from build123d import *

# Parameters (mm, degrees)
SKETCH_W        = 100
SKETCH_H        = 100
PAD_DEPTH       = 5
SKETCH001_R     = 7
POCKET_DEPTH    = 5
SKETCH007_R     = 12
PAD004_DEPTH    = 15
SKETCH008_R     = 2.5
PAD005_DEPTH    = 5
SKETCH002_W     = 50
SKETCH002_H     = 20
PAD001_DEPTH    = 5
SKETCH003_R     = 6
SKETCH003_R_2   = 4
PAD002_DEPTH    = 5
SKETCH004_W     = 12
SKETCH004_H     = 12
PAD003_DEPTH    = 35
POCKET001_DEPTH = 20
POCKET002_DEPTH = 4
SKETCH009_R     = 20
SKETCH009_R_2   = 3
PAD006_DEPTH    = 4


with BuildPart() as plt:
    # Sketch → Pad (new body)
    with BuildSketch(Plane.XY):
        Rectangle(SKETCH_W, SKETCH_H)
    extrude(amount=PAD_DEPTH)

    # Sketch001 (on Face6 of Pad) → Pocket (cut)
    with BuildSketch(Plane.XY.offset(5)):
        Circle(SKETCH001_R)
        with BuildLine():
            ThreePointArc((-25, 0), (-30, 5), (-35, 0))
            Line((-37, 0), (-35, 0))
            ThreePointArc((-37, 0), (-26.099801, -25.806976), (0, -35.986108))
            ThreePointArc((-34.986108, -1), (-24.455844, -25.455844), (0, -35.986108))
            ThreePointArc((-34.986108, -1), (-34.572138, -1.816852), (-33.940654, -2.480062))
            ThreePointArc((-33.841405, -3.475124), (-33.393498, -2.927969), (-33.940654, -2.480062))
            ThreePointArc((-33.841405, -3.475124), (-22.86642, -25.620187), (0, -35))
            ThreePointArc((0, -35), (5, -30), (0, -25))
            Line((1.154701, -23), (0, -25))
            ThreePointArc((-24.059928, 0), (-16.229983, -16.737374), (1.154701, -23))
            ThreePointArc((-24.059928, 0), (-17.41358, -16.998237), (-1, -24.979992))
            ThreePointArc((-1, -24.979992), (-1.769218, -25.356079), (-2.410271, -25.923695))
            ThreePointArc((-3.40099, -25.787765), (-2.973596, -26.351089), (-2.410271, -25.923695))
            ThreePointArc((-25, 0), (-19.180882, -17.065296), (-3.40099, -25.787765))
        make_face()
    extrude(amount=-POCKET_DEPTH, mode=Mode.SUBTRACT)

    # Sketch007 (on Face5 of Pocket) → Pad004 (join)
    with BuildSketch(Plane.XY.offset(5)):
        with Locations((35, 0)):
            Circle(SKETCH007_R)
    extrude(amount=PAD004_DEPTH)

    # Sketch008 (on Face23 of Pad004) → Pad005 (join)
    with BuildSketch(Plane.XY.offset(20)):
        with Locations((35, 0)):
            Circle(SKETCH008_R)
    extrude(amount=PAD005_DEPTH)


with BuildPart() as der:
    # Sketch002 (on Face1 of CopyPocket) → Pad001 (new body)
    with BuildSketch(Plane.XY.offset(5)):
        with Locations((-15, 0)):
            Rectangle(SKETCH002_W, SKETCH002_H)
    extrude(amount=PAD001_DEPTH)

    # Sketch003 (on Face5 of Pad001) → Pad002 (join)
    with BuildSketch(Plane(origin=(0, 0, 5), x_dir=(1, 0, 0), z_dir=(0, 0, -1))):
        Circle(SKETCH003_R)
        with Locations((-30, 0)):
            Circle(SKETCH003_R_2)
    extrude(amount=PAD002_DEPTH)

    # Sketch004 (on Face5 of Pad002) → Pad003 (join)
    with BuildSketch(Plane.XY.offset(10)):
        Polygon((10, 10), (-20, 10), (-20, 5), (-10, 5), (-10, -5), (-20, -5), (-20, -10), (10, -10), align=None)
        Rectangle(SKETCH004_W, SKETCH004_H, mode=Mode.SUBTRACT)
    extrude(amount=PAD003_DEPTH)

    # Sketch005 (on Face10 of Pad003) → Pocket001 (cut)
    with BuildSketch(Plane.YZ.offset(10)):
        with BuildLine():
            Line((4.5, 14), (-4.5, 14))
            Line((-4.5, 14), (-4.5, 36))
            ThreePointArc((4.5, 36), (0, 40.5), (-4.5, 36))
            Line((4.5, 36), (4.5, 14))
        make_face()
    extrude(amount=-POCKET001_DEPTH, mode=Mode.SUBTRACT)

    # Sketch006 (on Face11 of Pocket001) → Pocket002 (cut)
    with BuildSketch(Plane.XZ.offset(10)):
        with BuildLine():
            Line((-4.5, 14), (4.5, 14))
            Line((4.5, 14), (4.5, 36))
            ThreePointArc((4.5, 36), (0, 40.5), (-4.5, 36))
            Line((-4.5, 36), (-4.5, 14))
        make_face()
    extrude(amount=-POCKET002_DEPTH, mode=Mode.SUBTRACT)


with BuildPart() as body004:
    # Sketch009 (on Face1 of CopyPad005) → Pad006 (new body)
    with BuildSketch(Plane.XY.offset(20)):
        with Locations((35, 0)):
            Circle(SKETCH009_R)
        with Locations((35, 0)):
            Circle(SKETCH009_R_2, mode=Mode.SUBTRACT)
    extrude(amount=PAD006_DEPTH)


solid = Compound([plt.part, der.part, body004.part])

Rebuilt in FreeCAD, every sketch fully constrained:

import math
import FreeCAD as App
import Part
import Sketcher
Q = App.Units.Quantity


def add_polygon(sketch, points):
    """Adds a closed chain of lines whose ends are joined by coincident constraints."""
    first, n = sketch.GeometryCount, len(points)
    for a, b in zip(points, points[1:] + points[:1]):
        sketch.addGeometry(Part.LineSegment(App.Vector(*a, 0), App.Vector(*b, 0)), False)
    for i in range(n):
        sketch.addConstraint(Sketcher.Constraint("Coincident", first + i, 2, first + (i + 1) % n, 1))

doc = App.newDocument("Part")
body = doc.addObject("PartDesign::Body", "Body")

# Sketch on XY plane
sketch1 = body.newObject("Sketcher::SketchObject", "Sketch")
sketch1.AttachmentSupport = (doc.getObject("XY_Plane"), [""])
sketch1.MapMode = "FlatFace"
add_polygon(sketch1, [(-50, 50), (-50, -50), (50, -50), (50, 50)])  # lines 0-3
sketch1.addConstraint(Sketcher.Constraint("Vertical", 0))
sketch1.addConstraint(Sketcher.Constraint("Horizontal", 1))
sketch1.addConstraint(Sketcher.Constraint("Vertical", 2))
sketch1.addConstraint(Sketcher.Constraint("Horizontal", 3))
sketch1.addConstraint(Sketcher.Constraint("Symmetric", 0, 2, 2, 2, -1, 1))
sketch1.addConstraint(Sketcher.Constraint("Equal", 3, 0))
sketch1.addConstraint(Sketcher.Constraint("DistanceX", 1, 1, 1, 2, Q("100 mm")))
pad1 = body.newObject("PartDesign::Pad", "Pad")
pad1.Profile = sketch1
pad1.Length = 5

# Sketch on XY plane
sketch2 = body.newObject("Sketcher::SketchObject", "Sketch001")
sketch2.AttachmentSupport = (doc.getObject("XY_Plane"), [""])
sketch2.MapMode = "FlatFace"
sketch2.AttachmentOffset = App.Placement(App.Vector(0, 0, 5), App.Rotation())
sketch2.addGeometry(Part.Circle(App.Vector(0, 0, 0), App.Vector(0, 0, 1), 7), False)
sketch2.addGeometry(Part.ArcOfCircle(Part.Circle(App.Vector(-30, 0, 0), App.Vector(0, 0, 1), 5), math.radians(0), math.radians(180)), False)
sketch2.addGeometry(Part.LineSegment(App.Vector(-35, 0, 0), App.Vector(-37, 0, 0)), False)
sketch2.addGeometry(Part.ArcOfCircle(Part.Circle(App.Vector(-1.000001, -0.000001, 0), App.Vector(0, 0, 1), 35.999999), math.radians(179.999998), math.radians(271.591756)), False)
sketch2.addGeometry(Part.ArcOfCircle(Part.Circle(App.Vector(0.999999, -0.000001, 0), App.Vector(0, 0, 1), 35.999999), math.radians(-178.408247), math.radians(-91.591753)), False)
sketch2.addGeometry(Part.ArcOfCircle(Part.Circle(App.Vector(-32.000005, -0.000005, 0), App.Vector(0, 0, 1), 3.149095), math.radians(-161.485181), math.radians(-128.043244)), False)
sketch2.addGeometry(Part.ArcOfCircle(Part.Circle(App.Vector(-33.891029, -2.977593, 0), App.Vector(0, 0, 1), 0.5), math.radians(-84.304122), math.radians(95.695981)), False)
sketch2.addGeometry(Part.ArcOfCircle(Part.Circle(App.Vector(1, 0, 0), App.Vector(0, 0, 1), 35.014283), math.radians(-174.304087), math.radians(-91.636578)), False)
sketch2.addGeometry(Part.ArcOfCircle(Part.Circle(App.Vector(0, -30, 0), App.Vector(0, 0, 1), 5), math.radians(-90), math.radians(90)), False)
sketch2.addGeometry(Part.LineSegment(App.Vector(0, -25, 0), App.Vector(1.154701, -23, 0)), False)
sketch2.addGeometry(Part.ArcOfCircle(Part.Circle(App.Vector(0.000001, 1.055366, 0), App.Vector(0, 0, 1), 24.083064), math.radians(-177.488385), math.radians(-87.25181)), False)
sketch2.addGeometry(Part.ArcOfCircle(Part.Circle(App.Vector(1, 0, 0), App.Vector(0, 0, 1), 25.059928), math.radians(-179.999999), math.radians(-94.57757)), False)
sketch2.addGeometry(Part.ArcOfCircle(Part.Circle(App.Vector(-0.000005, -27.999993, 0), App.Vector(0, 0, 1), 3.181257), math.radians(108.320951), math.radians(139.2571)), False)
sketch2.addGeometry(Part.ArcOfCircle(Part.Circle(App.Vector(-2.90563, -25.85573, 0), App.Vector(0, 0, 1), 0.5), math.radians(172.187653), math.radians(352.187555)), False)
sketch2.addGeometry(Part.ArcOfCircle(Part.Circle(App.Vector(0.000003, -0.999998, 0), App.Vector(0, 0, 1), 25.019995), math.radians(177.709394), math.radians(262.187542)), False)
sketch2.addConstraint(Sketcher.Constraint("Coincident", 1, 2, 2, 1))
sketch2.addConstraint(Sketcher.Constraint("Coincident", 2, 2, 3, 1))
sketch2.addConstraint(Sketcher.Constraint("Coincident", 3, 2, 4, 2))
sketch2.addConstraint(Sketcher.Constraint("Coincident", 4, 1, 5, 1))
sketch2.addConstraint(Sketcher.Constraint("Coincident", 5, 2, 6, 2))
sketch2.addConstraint(Sketcher.Constraint("Coincident", 6, 1, 7, 1))
sketch2.addConstraint(Sketcher.Constraint("Coincident", 7, 2, 8, 1))
sketch2.addConstraint(Sketcher.Constraint("Coincident", 8, 2, 9, 1))
sketch2.addConstraint(Sketcher.Constraint("Coincident", 9, 2, 10, 2))
sketch2.addConstraint(Sketcher.Constraint("Coincident", 10, 1, 11, 1))
sketch2.addConstraint(Sketcher.Constraint("Coincident", 11, 2, 12, 1))
sketch2.addConstraint(Sketcher.Constraint("Coincident", 12, 2, 13, 2))
sketch2.addConstraint(Sketcher.Constraint("Coincident", 13, 1, 14, 2))
sketch2.addConstraint(Sketcher.Constraint("Coincident", 14, 1, 1, 1))
sketch2.addConstraint(Sketcher.Constraint("Horizontal", 2))
sketch2.addConstraint(Sketcher.Constraint("Coincident", 0, 3, -1, 1))
sketch2.addConstraint(Sketcher.Constraint("Coincident", 7, 3, 4, 3))
sketch2.addConstraint(Sketcher.Constraint("Coincident", 11, 3, 4, 3))
sketch2.addConstraint(Sketcher.Constraint("Equal", 3, 4))
sketch2.addConstraint(Sketcher.Constraint("Equal", 1, 8))
sketch2.addConstraint(Sketcher.Constraint("Equal", 6, 13))
sketch2.addConstraint(Sketcher.Constraint("Symmetric", 3, 3, 4, 3, -1, 1))
sketch2.addConstraint(Sketcher.Constraint("PointOnObject", 1, 3, -1))
sketch2.addConstraint(Sketcher.Constraint("PointOnObject", 3, 3, -1))
sketch2.addConstraint(Sketcher.Constraint("PointOnObject", 8, 3, -2))
sketch2.addConstraint(Sketcher.Constraint("PointOnObject", 10, 3, -2))
sketch2.addConstraint(Sketcher.Constraint("PointOnObject", 1, 2, -1))
sketch2.addConstraint(Sketcher.Constraint("PointOnObject", 7, 2, -2))
sketch2.addConstraint(Sketcher.Constraint("PointOnObject", 8, 2, -2))
sketch2.addConstraint(Sketcher.Constraint("PointOnObject", 10, 1, -1))
sketch2.addConstraint(Sketcher.Constraint("PointOnObject", 14, 1, -1))
sketch2.addConstraint(Sketcher.Constraint("Horizontal", 14, 3, 4, 1))
sketch2.addConstraint(Sketcher.Constraint("Vertical", 3, 3, 11, 2))
sketch2.addConstraint(Sketcher.Constraint("Diameter", 0, Q("14 mm")))
sketch2.addConstraint(Sketcher.Constraint("Radius", 1, Q("5 mm")))
sketch2.addConstraint(Sketcher.Constraint("Radius", 3, Q("35.999999 mm")))
sketch2.addConstraint(Sketcher.Constraint("Radius", 6, Q("0.5 mm")))
sketch2.addConstraint(Sketcher.Constraint("DistanceX", 2, 2, 2, 1, Q("2 mm")))
sketch2.addConstraint(Sketcher.Constraint("Angle", 9, Q("59.99999 deg")))
sketch2.addConstraint(Sketcher.Constraint("DistanceX", 1, 3, -1, 1, Q("30 mm")))
sketch2.addConstraint(Sketcher.Constraint("DistanceY", 8, 3, -1, 1, Q("30 mm")))
sketch2.addConstraint(Sketcher.Constraint("DistanceY", 14, 3, -1, 1, Q("0.999998 mm")))
sketch2.addConstraint(Sketcher.Constraint("DistanceY", 9, 2, -1, 1, Q("23 mm")))
sketch2.addConstraint(Sketcher.Constraint("Radius", 11, Q("25.059928 mm")))
sketch2.addConstraint(Sketcher.Constraint("DistanceY", 12, 3, 11, 2, Q("3.020001 mm")))
sketch2.addConstraint(Sketcher.Constraint("Radius", 5, Q("3.149095 mm")))
sketch2.addConstraint(Sketcher.Constraint("Radius", 12, Q("3.181257 mm")))
sketch2.addConstraint(Sketcher.Constraint("Radius", 14, Q("25.019995 mm")))
sketch2.addConstraint(Sketcher.Constraint("DistanceX", 6, 1, 5, 3, Q("1.8414 mm")))
sketch2.addConstraint(Sketcher.Constraint("DistanceX", 6, 3, 10, 1, Q("9.831101 mm")))
sketch2.addConstraint(Sketcher.Constraint("DistanceX", 13, 3, -1, 1, Q("2.90563 mm")))
sketch2.addConstraint(Sketcher.Constraint("DistanceY", 13, 3, -1, 1, Q("25.85573 mm")))
sketch2.addConstraint(Sketcher.Constraint("DistanceY", 5, 2, -1, 1, Q("2.480062 mm")))
pocket1 = body.newObject("PartDesign::Pocket", "Pocket")
pocket1.Profile = sketch2
pocket1.Length = 5

# Sketch on XY plane
sketch3 = body.newObject("Sketcher::SketchObject", "Sketch002")
sketch3.AttachmentSupport = (doc.getObject("XY_Plane"), [""])
sketch3.MapMode = "FlatFace"
sketch3.AttachmentOffset = App.Placement(App.Vector(0, 0, 5), App.Rotation())
sketch3.addGeometry(Part.Circle(App.Vector(35, 0, 0), App.Vector(0, 0, 1), 12), False)
sketch3.addConstraint(Sketcher.Constraint("PointOnObject", 0, 3, -1))
sketch3.addConstraint(Sketcher.Constraint("Diameter", 0, Q("24 mm")))
sketch3.addConstraint(Sketcher.Constraint("DistanceX", -1, 1, 0, 3, Q("35 mm")))
pad2 = body.newObject("PartDesign::Pad", "Pad001")
pad2.Profile = sketch3
pad2.Length = 15

# Sketch on XY plane
sketch4 = body.newObject("Sketcher::SketchObject", "Sketch003")
sketch4.AttachmentSupport = (doc.getObject("XY_Plane"), [""])
sketch4.MapMode = "FlatFace"
sketch4.AttachmentOffset = App.Placement(App.Vector(0, 0, 20), App.Rotation())
sketch4.addGeometry(Part.Circle(App.Vector(35, 0, 0), App.Vector(0, 0, 1), 2.5), False)
sketch4.addConstraint(Sketcher.Constraint("PointOnObject", 0, 3, -1))
sketch4.addConstraint(Sketcher.Constraint("Diameter", 0, Q("5 mm")))
sketch4.addConstraint(Sketcher.Constraint("DistanceX", -1, 1, 0, 3, Q("35 mm")))
pad3 = body.newObject("PartDesign::Pad", "Pad002")
pad3.Profile = sketch4
pad3.Length = 5
body2 = doc.addObject("PartDesign::Body", "Body001")

# Sketch on XY plane
sketch5 = body2.newObject("Sketcher::SketchObject", "Sketch004")
sketch5.AttachmentSupport = (doc.getObject("XY_Plane001"), [""])
sketch5.MapMode = "FlatFace"
sketch5.AttachmentOffset = App.Placement(App.Vector(0, 0, 5), App.Rotation())
add_polygon(sketch5, [(-40, 10), (-40, -10), (10, -10), (10, 10)])  # lines 0-3
sketch5.addConstraint(Sketcher.Constraint("Vertical", 0))
sketch5.addConstraint(Sketcher.Constraint("Horizontal", 1))
sketch5.addConstraint(Sketcher.Constraint("Vertical", 2))
sketch5.addConstraint(Sketcher.Constraint("Horizontal", 3))
sketch5.addConstraint(Sketcher.Constraint("DistanceX", 1, 1, 1, 2, Q("50 mm")))
sketch5.addConstraint(Sketcher.Constraint("DistanceY", 0, 2, 0, 1, Q("20 mm")))
sketch5.addConstraint(Sketcher.Constraint("DistanceX", 0, 2, -1, 1, Q("40 mm")))
sketch5.addConstraint(Sketcher.Constraint("DistanceY", 0, 2, -1, 1, Q("10 mm")))
pad4 = body2.newObject("PartDesign::Pad", "Pad003")
pad4.Profile = sketch5
pad4.Length = 5

# Sketch on XY plane
sketch6 = body2.newObject("Sketcher::SketchObject", "Sketch005")
sketch6.AttachmentSupport = (doc.getObject("XY_Plane001"), [""])
sketch6.MapMode = "FlatFace"
sketch6.AttachmentOffset = App.Placement(App.Vector(0, 0, 5), App.Rotation())
sketch6.addGeometry(Part.Circle(App.Vector(0, 0, 0), App.Vector(0, 0, 1), 6), False)
sketch6.addGeometry(Part.Circle(App.Vector(-30, 0, 0), App.Vector(0, 0, 1), 4), False)
sketch6.addConstraint(Sketcher.Constraint("Coincident", 0, 3, -1, 1))
sketch6.addConstraint(Sketcher.Constraint("PointOnObject", 1, 3, -1))
sketch6.addConstraint(Sketcher.Constraint("Diameter", 0, Q("12 mm")))
sketch6.addConstraint(Sketcher.Constraint("Diameter", 1, Q("8 mm")))
sketch6.addConstraint(Sketcher.Constraint("DistanceX", 1, 3, -1, 1, Q("30 mm")))
pad5 = body2.newObject("PartDesign::Pad", "Pad004")
pad5.Profile = sketch6
pad5.Length = 5
pad5.Reversed = True

# Sketch on XY plane
sketch7 = body2.newObject("Sketcher::SketchObject", "Sketch006")
sketch7.AttachmentSupport = (doc.getObject("XY_Plane001"), [""])
sketch7.MapMode = "FlatFace"
sketch7.AttachmentOffset = App.Placement(App.Vector(0, 0, 10), App.Rotation())
add_polygon(sketch7, [(10, 10), (-20, 10), (-20, 5), (-10, 5), (-10, -5), (-20, -5), (-20, -10), (10, -10)])  # lines 0-7
add_polygon(sketch7, [(6, -6), (-6, -6), (-6, 6), (6, 6)])  # lines 8-11
sketch7.addConstraint(Sketcher.Constraint("Horizontal", 0))
sketch7.addConstraint(Sketcher.Constraint("Vertical", 1))
sketch7.addConstraint(Sketcher.Constraint("Horizontal", 2))
sketch7.addConstraint(Sketcher.Constraint("Vertical", 3))
sketch7.addConstraint(Sketcher.Constraint("Horizontal", 4))
sketch7.addConstraint(Sketcher.Constraint("Vertical", 5))
sketch7.addConstraint(Sketcher.Constraint("Horizontal", 6))
sketch7.addConstraint(Sketcher.Constraint("Vertical", 7))
sketch7.addConstraint(Sketcher.Constraint("Horizontal", 8))
sketch7.addConstraint(Sketcher.Constraint("Vertical", 9))
sketch7.addConstraint(Sketcher.Constraint("Horizontal", 10))
sketch7.addConstraint(Sketcher.Constraint("Vertical", 11))
sketch7.addConstraint(Sketcher.Constraint("Symmetric", 8, 2, 10, 2, -1, 1))
sketch7.addConstraint(Sketcher.Constraint("Symmetric", 1, 2, 4, 2, -1))
sketch7.addConstraint(Sketcher.Constraint("Equal", 4, 3))
sketch7.addConstraint(Sketcher.Constraint("Equal", 1, 5))
sketch7.addConstraint(Sketcher.Constraint("Equal", 10, 9))
sketch7.addConstraint(Sketcher.Constraint("DistanceX", 0, 2, 0, 1, Q("30 mm")))
sketch7.addConstraint(Sketcher.Constraint("DistanceX", 2, 1, 2, 2, Q("10 mm")))
sketch7.addConstraint(Sketcher.Constraint("DistanceX", 8, 2, 8, 1, Q("12 mm")))
sketch7.addConstraint(Sketcher.Constraint("DistanceY", 1, 2, 1, 1, Q("5 mm")))
sketch7.addConstraint(Sketcher.Constraint("DistanceX", 0, 2, -1, 1, Q("20 mm")))
pad6 = body2.newObject("PartDesign::Pad", "Pad005")
pad6.Profile = sketch7
pad6.Length = 35

# Sketch on YZ plane
sketch8 = body2.newObject("Sketcher::SketchObject", "Sketch007")
sketch8.AttachmentSupport = (doc.getObject("YZ_Plane001"), [""])
sketch8.MapMode = "FlatFace"
sketch8.AttachmentOffset = App.Placement(App.Vector(0, 0, 10), App.Rotation())
sketch8.addGeometry(Part.LineSegment(App.Vector(-4.5, 14, 0), App.Vector(4.5, 14, 0)), False)
sketch8.addGeometry(Part.LineSegment(App.Vector(4.5, 14, 0), App.Vector(4.5, 36, 0)), False)
sketch8.addGeometry(Part.ArcOfCircle(Part.Circle(App.Vector(0, 36, 0), App.Vector(0, 0, 1), 4.5), math.radians(0), math.radians(180)), False)
sketch8.addGeometry(Part.LineSegment(App.Vector(-4.5, 36, 0), App.Vector(-4.5, 14, 0)), False)
sketch8.addConstraint(Sketcher.Constraint("Coincident", 0, 2, 1, 1))
sketch8.addConstraint(Sketcher.Constraint("Tangent", 1, 2, 2, 1))
sketch8.addConstraint(Sketcher.Constraint("Tangent", 2, 2, 3, 1))
sketch8.addConstraint(Sketcher.Constraint("Coincident", 3, 2, 0, 1))
sketch8.addConstraint(Sketcher.Constraint("Horizontal", 0))
sketch8.addConstraint(Sketcher.Constraint("Vertical", 1))
sketch8.addConstraint(Sketcher.Constraint("Vertical", 3))
sketch8.addConstraint(Sketcher.Constraint("PointOnObject", 2, 3, -2))
sketch8.addConstraint(Sketcher.Constraint("Radius", 2, Q("4.5 mm")))
sketch8.addConstraint(Sketcher.Constraint("DistanceY", 1, 1, 1, 2, Q("22 mm")))
sketch8.addConstraint(Sketcher.Constraint("DistanceY", -1, 1, 2, 3, Q("36 mm")))
pocket2 = body2.newObject("PartDesign::Pocket", "Pocket001")
pocket2.Profile = sketch8
pocket2.Length = 20

# Sketch on XZ plane
sketch9 = body2.newObject("Sketcher::SketchObject", "Sketch008")
sketch9.AttachmentSupport = (doc.getObject("XZ_Plane001"), [""])
sketch9.MapMode = "FlatFace"
sketch9.AttachmentOffset = App.Placement(App.Vector(0, 0, 10), App.Rotation())
sketch9.addGeometry(Part.LineSegment(App.Vector(-4.5, 14, 0), App.Vector(4.5, 14, 0)), False)
sketch9.addGeometry(Part.LineSegment(App.Vector(4.5, 14, 0), App.Vector(4.5, 36, 0)), False)
sketch9.addGeometry(Part.ArcOfCircle(Part.Circle(App.Vector(0, 36, 0), App.Vector(0, 0, 1), 4.5), math.radians(0), math.radians(180)), False)
sketch9.addGeometry(Part.LineSegment(App.Vector(-4.5, 36, 0), App.Vector(-4.5, 14, 0)), False)
sketch9.addConstraint(Sketcher.Constraint("Coincident", 0, 2, 1, 1))
sketch9.addConstraint(Sketcher.Constraint("Tangent", 1, 2, 2, 1))
sketch9.addConstraint(Sketcher.Constraint("Tangent", 2, 2, 3, 1))
sketch9.addConstraint(Sketcher.Constraint("Coincident", 3, 2, 0, 1))
sketch9.addConstraint(Sketcher.Constraint("Horizontal", 0))
sketch9.addConstraint(Sketcher.Constraint("Vertical", 1))
sketch9.addConstraint(Sketcher.Constraint("Vertical", 3))
sketch9.addConstraint(Sketcher.Constraint("PointOnObject", 2, 3, -2))
sketch9.addConstraint(Sketcher.Constraint("Radius", 2, Q("4.5 mm")))
sketch9.addConstraint(Sketcher.Constraint("DistanceY", 1, 1, 1, 2, Q("22 mm")))
sketch9.addConstraint(Sketcher.Constraint("DistanceY", -1, 1, 2, 3, Q("36 mm")))
pocket3 = body2.newObject("PartDesign::Pocket", "Pocket002")
pocket3.Profile = sketch9
pocket3.Length = 4
body3 = doc.addObject("PartDesign::Body", "Body002")

# Sketch on XY plane
sketch10 = body3.newObject("Sketcher::SketchObject", "Sketch009")
sketch10.AttachmentSupport = (doc.getObject("XY_Plane002"), [""])
sketch10.MapMode = "FlatFace"
sketch10.AttachmentOffset = App.Placement(App.Vector(0, 0, 20), App.Rotation())
sketch10.addGeometry(Part.Circle(App.Vector(35, 0, 0), App.Vector(0, 0, 1), 20), False)
sketch10.addGeometry(Part.Circle(App.Vector(35, 0, 0), App.Vector(0, 0, 1), 3), False)
sketch10.addConstraint(Sketcher.Constraint("Coincident", 1, 3, 0, 3))
sketch10.addConstraint(Sketcher.Constraint("PointOnObject", 0, 3, -1))
sketch10.addConstraint(Sketcher.Constraint("Diameter", 0, Q("40 mm")))
sketch10.addConstraint(Sketcher.Constraint("Diameter", 1, Q("6 mm")))
sketch10.addConstraint(Sketcher.Constraint("DistanceX", -1, 1, 0, 3, Q("35 mm")))
pad7 = body3.newObject("PartDesign::Pad", "Pad006")
pad7.Profile = sketch10
pad7.Length = 4

doc.recompute()
